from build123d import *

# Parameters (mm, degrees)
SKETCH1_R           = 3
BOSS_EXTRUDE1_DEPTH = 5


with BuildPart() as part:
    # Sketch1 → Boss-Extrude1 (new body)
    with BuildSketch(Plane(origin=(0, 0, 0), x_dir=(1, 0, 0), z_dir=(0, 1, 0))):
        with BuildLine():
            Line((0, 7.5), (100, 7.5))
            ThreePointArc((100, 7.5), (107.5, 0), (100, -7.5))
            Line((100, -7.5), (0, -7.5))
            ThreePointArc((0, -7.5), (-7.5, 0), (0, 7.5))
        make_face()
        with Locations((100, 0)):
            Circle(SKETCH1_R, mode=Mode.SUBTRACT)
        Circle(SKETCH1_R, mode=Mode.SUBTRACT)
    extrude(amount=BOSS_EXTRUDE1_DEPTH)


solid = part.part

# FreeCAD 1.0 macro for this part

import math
import FreeCAD as App
import Part
import Sketcher

V = App.Vector

doc = App.newDocument("Part")
params = doc.addObject("Spreadsheet::Sheet", "Params")
for row, (alias, value) in enumerate([
    ("sketch1_diameter", "6 mm"),
    ("sketch1_radius", "7.5 mm"),
    ("sketch1_width", "100 mm"),
    ("pad1_length", "5 mm"),
], start=1):
    params.set(f"A{row}", alias)
    params.set(f"B{row}", "=" + value)
    params.setAlias(f"B{row}", alias)

body = doc.addObject("PartDesign::Body", "Body")

sketch1 = doc.addObject("Sketcher::SketchObject", "Sketch")
body.addObject(sketch1)
sketch1.AttachmentSupport = (doc.XZ_Plane, [""])
sketch1.MapMode = "FlatFace"
sketch1.addGeometry([
    Part.LineSegment(V(100, -7.5, 0), V(0, -7.5, 0)),
    Part.ArcOfCircle(Part.Circle(V(0, 0, 0), V(0, 0, 1), 7.5), math.radians(90), math.radians(270)),
    Part.LineSegment(V(0, 7.5, 0), V(100, 7.5, 0)),
    Part.ArcOfCircle(Part.Circle(V(100, 0, 0), V(0, 0, 1), 7.5), math.radians(-90), math.radians(90)),
    Part.Circle(V(100, 0, 0), V(0, 0, 1), 3),
    Part.Circle(V(0, 0, 0), V(0, 0, 1), 3),
], False)
sketch1.addConstraint([
    Sketcher.Constraint("Tangent", 0, 2, 1, 2),
    Sketcher.Constraint("Tangent", 1, 1, 2, 1),
    Sketcher.Constraint("Tangent", 2, 2, 3, 2),
    Sketcher.Constraint("Tangent", 3, 1, 0, 1),
    Sketcher.Constraint("Horizontal", 0),
    Sketcher.Constraint("Horizontal", 2),
    Sketcher.Constraint("Coincident", 1, 3, -1, 1),
    Sketcher.Constraint("Coincident", 5, 3, -1, 1),
    Sketcher.Constraint("Coincident", 4, 3, 3, 3),
    Sketcher.Constraint("Equal", 4, 5),
    Sketcher.Constraint("Diameter", 4, 6.0),
    Sketcher.Constraint("Radius", 1, 7.5),
    Sketcher.Constraint("DistanceX", 0, 2, 0, 1, 100.0),
])
sketch1.setExpression("Constraints[10]", "Params.sketch1_diameter")
sketch1.setExpression("Constraints[11]", "Params.sketch1_radius")
sketch1.setExpression("Constraints[12]", "Params.sketch1_width")
pad1 = doc.addObject("PartDesign::Pad", "Pad")
body.addObject(pad1)
pad1.Profile = sketch1
pad1.setExpression("Length", "Params.pad1_length")
pad1.Reversed = True

doc.recompute()
